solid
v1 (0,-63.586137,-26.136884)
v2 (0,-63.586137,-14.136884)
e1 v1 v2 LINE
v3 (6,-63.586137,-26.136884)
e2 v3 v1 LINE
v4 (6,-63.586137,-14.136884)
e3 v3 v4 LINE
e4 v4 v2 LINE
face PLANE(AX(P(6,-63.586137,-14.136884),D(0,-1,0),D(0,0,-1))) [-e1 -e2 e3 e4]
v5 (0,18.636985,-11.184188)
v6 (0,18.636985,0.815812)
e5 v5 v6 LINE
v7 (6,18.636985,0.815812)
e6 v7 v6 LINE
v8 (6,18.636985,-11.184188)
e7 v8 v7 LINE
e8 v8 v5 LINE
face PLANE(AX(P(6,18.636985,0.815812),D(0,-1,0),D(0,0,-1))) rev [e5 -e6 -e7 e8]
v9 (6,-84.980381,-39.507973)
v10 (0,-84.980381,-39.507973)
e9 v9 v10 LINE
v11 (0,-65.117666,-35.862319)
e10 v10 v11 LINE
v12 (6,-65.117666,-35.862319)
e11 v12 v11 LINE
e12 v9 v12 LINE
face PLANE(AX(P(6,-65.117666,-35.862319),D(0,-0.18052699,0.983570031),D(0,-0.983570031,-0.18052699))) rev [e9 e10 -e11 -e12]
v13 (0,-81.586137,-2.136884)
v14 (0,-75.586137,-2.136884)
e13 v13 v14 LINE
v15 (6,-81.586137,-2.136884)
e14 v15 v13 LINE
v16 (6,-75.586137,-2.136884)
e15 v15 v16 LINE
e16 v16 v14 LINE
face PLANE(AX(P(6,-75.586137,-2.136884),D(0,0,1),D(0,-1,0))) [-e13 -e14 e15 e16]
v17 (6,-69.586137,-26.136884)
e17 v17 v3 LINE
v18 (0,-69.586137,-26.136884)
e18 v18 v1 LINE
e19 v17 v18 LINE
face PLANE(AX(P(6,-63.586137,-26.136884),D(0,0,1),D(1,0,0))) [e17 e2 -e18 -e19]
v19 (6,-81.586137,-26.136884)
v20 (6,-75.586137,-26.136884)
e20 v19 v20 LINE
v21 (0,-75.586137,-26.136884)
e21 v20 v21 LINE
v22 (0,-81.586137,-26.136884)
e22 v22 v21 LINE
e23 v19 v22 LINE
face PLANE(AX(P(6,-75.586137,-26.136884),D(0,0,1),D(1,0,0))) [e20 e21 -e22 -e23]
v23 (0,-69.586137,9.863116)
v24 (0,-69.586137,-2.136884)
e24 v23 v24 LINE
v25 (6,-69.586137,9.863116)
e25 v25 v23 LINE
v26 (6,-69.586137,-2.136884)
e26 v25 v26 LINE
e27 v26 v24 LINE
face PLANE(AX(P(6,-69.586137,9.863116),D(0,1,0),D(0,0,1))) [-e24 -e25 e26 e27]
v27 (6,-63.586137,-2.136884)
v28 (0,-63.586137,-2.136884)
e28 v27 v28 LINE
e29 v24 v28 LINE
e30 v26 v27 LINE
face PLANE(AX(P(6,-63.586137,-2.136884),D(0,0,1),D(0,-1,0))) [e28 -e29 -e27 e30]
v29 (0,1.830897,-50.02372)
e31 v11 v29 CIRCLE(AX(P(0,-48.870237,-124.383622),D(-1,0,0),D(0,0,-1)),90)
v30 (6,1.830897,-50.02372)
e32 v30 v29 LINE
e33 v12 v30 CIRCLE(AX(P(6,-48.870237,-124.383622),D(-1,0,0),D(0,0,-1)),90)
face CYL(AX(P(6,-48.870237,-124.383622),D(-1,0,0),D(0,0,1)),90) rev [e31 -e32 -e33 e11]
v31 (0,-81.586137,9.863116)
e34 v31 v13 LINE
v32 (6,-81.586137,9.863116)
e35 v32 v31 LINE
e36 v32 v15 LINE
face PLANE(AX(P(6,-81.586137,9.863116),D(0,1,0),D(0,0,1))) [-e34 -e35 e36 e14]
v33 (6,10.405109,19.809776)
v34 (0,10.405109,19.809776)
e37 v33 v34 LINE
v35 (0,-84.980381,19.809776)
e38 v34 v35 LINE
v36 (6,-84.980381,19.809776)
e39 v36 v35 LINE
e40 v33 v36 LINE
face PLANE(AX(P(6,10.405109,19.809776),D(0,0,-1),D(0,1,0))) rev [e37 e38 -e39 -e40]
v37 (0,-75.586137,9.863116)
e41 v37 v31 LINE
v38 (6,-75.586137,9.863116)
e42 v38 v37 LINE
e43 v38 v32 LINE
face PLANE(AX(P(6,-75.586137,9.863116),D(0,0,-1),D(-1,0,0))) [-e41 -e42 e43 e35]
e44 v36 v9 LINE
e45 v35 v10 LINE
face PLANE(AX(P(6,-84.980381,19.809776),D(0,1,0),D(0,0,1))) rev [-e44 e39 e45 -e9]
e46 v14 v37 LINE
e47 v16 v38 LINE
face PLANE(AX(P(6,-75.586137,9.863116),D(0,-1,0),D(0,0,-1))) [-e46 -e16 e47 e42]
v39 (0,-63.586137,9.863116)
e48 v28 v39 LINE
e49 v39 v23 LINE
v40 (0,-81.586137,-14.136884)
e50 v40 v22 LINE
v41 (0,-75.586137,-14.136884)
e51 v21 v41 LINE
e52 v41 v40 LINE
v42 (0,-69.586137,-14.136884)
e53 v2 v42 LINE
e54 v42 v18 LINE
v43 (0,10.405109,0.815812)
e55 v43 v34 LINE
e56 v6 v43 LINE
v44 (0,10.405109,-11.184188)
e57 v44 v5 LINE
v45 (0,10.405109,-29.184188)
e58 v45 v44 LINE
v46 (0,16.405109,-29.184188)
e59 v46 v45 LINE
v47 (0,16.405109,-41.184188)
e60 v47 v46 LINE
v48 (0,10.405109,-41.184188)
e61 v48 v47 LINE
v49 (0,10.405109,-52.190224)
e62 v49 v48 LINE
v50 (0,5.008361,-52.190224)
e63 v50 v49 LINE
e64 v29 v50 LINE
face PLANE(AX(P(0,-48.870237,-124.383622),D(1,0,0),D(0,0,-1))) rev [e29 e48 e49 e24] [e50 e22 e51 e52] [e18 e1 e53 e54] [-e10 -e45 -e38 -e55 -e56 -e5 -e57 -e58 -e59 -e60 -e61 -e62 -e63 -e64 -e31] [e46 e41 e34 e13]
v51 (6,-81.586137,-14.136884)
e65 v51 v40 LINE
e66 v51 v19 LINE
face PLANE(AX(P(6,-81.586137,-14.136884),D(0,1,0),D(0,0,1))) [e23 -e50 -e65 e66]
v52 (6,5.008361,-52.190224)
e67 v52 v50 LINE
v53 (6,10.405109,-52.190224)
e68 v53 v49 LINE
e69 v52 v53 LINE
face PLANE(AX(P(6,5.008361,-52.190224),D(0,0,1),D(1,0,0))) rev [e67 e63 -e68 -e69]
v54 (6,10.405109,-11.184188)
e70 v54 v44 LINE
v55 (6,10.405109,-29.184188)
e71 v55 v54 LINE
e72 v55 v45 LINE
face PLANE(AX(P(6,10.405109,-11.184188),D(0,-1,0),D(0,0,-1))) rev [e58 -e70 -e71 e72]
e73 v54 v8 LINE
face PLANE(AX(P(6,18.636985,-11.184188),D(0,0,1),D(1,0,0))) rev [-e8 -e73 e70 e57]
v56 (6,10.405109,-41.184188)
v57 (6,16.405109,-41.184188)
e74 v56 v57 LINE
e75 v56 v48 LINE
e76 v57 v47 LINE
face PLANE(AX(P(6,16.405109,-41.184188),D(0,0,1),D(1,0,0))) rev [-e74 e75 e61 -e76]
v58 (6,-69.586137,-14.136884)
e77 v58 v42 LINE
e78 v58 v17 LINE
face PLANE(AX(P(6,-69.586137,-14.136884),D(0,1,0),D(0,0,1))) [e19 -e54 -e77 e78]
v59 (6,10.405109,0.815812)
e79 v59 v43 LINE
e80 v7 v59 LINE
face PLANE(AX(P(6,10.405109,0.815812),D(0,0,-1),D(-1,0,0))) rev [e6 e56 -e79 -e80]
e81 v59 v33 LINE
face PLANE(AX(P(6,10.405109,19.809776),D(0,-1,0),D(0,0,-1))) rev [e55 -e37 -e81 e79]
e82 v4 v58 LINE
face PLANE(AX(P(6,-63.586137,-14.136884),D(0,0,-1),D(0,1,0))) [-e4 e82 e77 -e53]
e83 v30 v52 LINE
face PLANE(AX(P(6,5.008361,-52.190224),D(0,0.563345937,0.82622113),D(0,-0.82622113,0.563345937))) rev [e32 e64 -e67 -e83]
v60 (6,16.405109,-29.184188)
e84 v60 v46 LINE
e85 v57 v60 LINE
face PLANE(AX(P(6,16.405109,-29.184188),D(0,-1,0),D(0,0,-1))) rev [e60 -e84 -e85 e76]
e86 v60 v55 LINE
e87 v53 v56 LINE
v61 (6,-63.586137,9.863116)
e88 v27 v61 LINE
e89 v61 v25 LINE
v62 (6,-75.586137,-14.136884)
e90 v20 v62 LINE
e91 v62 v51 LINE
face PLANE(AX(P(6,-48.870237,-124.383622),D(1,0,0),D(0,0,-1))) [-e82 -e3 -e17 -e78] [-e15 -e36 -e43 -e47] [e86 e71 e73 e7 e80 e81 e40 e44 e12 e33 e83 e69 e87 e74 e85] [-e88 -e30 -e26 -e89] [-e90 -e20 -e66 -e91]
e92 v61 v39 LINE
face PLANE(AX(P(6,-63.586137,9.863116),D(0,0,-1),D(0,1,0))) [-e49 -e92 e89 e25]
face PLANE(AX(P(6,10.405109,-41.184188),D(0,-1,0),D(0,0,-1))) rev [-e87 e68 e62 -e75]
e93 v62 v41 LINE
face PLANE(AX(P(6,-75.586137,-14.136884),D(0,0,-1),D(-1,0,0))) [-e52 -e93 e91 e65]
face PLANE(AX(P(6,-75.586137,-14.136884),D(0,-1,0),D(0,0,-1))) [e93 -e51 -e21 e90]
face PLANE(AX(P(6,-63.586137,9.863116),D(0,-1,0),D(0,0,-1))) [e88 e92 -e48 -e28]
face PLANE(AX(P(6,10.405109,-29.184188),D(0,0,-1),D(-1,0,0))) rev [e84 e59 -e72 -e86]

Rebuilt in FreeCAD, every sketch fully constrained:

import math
import FreeCAD as App
import Part
import Sketcher
from FreeCAD import Vector
Q = App.Units.Quantity

doc = App.newDocument("Part")
body = doc.addObject("PartDesign::Body", "Body")

sketch1 = body.newObject("Sketcher::SketchObject", "Sketch")
sketch1.AttachmentSupport = (doc.getObject("YZ_Plane"), [""])
sketch1.MapMode = "FlatFace"
sketch1.addGeometry([
    Part.LineSegment(Vector(10.4, 19.8, 0), Vector(-85, 19.8, 0)),
    Part.LineSegment(Vector(-85, 19.8, 0), Vector(-85, -39.5, 0)),
    Part.LineSegment(Vector(-85, -39.5, 0), Vector(-65.1, -35.9, 0)),
    Part.ArcOfCircle(Part.Circle(Vector(-48.9, -124.4, 0), Vector(0, 0, 1), 90), math.radians(56), math.radians(100)),
    Part.LineSegment(Vector(1.8, -50, 0), Vector(5, -52.2, 0)),
    Part.LineSegment(Vector(5, -52.2, 0), Vector(10.4, -52.2, 0)),
    Part.LineSegment(Vector(10.4, -52.2, 0), Vector(10.4, -41.2, 0)),
    Part.LineSegment(Vector(10.4, -41.2, 0), Vector(16.4, -41.2, 0)),
    Part.LineSegment(Vector(16.4, -41.2, 0), Vector(16.4, -29.2, 0)),
    Part.LineSegment(Vector(16.4, -29.2, 0), Vector(10.4, -29.2, 0)),
    Part.LineSegment(Vector(10.4, -29.2, 0), Vector(10.4, -11.2, 0)),
    Part.LineSegment(Vector(10.4, -11.2, 0), Vector(18.6, -11.2, 0)),
    Part.LineSegment(Vector(18.6, -11.2, 0), Vector(18.6, 0.8, 0)),
    Part.LineSegment(Vector(18.6, 0.8, 0), Vector(10.4, 0.8, 0)),
    Part.LineSegment(Vector(10.4, 0.8, 0), Vector(10.4, 19.8, 0)),
    Part.LineSegment(Vector(-81.6, -2.1, 0), Vector(-81.6, 9.9, 0)),
    Part.LineSegment(Vector(-81.6, 9.9, 0), Vector(-75.6, 9.9, 0)),
    Part.LineSegment(Vector(-75.6, 9.9, 0), Vector(-75.6, -2.1, 0)),
    Part.LineSegment(Vector(-75.6, -2.1, 0), Vector(-81.6, -2.1, 0)),
    Part.LineSegment(Vector(-81.6, -26.1, 0), Vector(-81.6, -14.1, 0)),
    Part.LineSegment(Vector(-81.6, -14.1, 0), Vector(-75.6, -14.1, 0)),
    Part.LineSegment(Vector(-75.6, -14.1, 0), Vector(-75.6, -26.1, 0)),
    Part.LineSegment(Vector(-75.6, -26.1, 0), Vector(-81.6, -26.1, 0)),
    Part.LineSegment(Vector(-69.6, -2.1, 0), Vector(-69.6, 9.9, 0)),
    Part.LineSegment(Vector(-69.6, 9.9, 0), Vector(-63.6, 9.9, 0)),
    Part.LineSegment(Vector(-63.6, 9.9, 0), Vector(-63.6, -2.1, 0)),
    Part.LineSegment(Vector(-63.6, -2.1, 0), Vector(-69.6, -2.1, 0)),
    Part.LineSegment(Vector(-69.6, -26.1, 0), Vector(-69.6, -14.1, 0)),
    Part.LineSegment(Vector(-69.6, -14.1, 0), Vector(-63.6, -14.1, 0)),
    Part.LineSegment(Vector(-63.6, -14.1, 0), Vector(-63.6, -26.1, 0)),
    Part.LineSegment(Vector(-63.6, -26.1, 0), Vector(-69.6, -26.1, 0)),
], False)
sketch1.addConstraint([
    Sketcher.Constraint("Coincident", 0, 2, 1, 1),
    Sketcher.Constraint("Coincident", 1, 2, 2, 1),
    Sketcher.Constraint("Tangent", 2, 2, 3, 2),
    Sketcher.Constraint("Tangent", 3, 1, 4, 1),
    Sketcher.Constraint("Coincident", 4, 2, 5, 1),
    Sketcher.Constraint("Coincident", 5, 2, 6, 1),
    Sketcher.Constraint("Coincident", 6, 2, 7, 1),
    Sketcher.Constraint("Coincident", 7, 2, 8, 1),
    Sketcher.Constraint("Coincident", 8, 2, 9, 1),
    Sketcher.Constraint("Coincident", 9, 2, 10, 1),
    Sketcher.Constraint("Coincident", 10, 2, 11, 1),
    Sketcher.Constraint("Coincident", 11, 2, 12, 1),
    Sketcher.Constraint("Coincident", 12, 2, 13, 1),
    Sketcher.Constraint("Coincident", 13, 2, 14, 1),
    Sketcher.Constraint("Coincident", 14, 2, 0, 1),
    Sketcher.Constraint("Coincident", 15, 2, 16, 1),
    Sketcher.Constraint("Coincident", 16, 2, 17, 1),
    Sketcher.Constraint("Coincident", 17, 2, 18, 1),
    Sketcher.Constraint("Coincident", 18, 2, 15, 1),
    Sketcher.Constraint("Coincident", 19, 2, 20, 1),
    Sketcher.Constraint("Coincident", 20, 2, 21, 1),
    Sketcher.Constraint("Coincident", 21, 2, 22, 1),
    Sketcher.Constraint("Coincident", 22, 2, 19, 1),
    Sketcher.Constraint("Coincident", 23, 2, 24, 1),
    Sketcher.Constraint("Coincident", 24, 2, 25, 1),
    Sketcher.Constraint("Coincident", 25, 2, 26, 1),
    Sketcher.Constraint("Coincident", 26, 2, 23, 1),
    Sketcher.Constraint("Coincident", 27, 2, 28, 1),
    Sketcher.Constraint("Coincident", 28, 2, 29, 1),
    Sketcher.Constraint("Coincident", 29, 2, 30, 1),
    Sketcher.Constraint("Coincident", 30, 2, 27, 1),
    Sketcher.Constraint("Horizontal", 0),
    Sketcher.Constraint("Vertical", 1),
    Sketcher.Constraint("Horizontal", 5),
    Sketcher.Constraint("Vertical", 6),
    Sketcher.Constraint("Horizontal", 7),
    Sketcher.Constraint("Vertical", 8),
    Sketcher.Constraint("Horizontal", 9),
    Sketcher.Constraint("Vertical", 10),
    Sketcher.Constraint("Horizontal", 11),
    Sketcher.Constraint("Vertical", 12),
    Sketcher.Constraint("Horizontal", 13),
    Sketcher.Constraint("Vertical", 14),
    Sketcher.Constraint("Vertical", 15),
    Sketcher.Constraint("Horizontal", 16),
    Sketcher.Constraint("Vertical", 17),
    Sketcher.Constraint("Horizontal", 18),
    Sketcher.Constraint("Vertical", 19),
    Sketcher.Constraint("Horizontal", 20),
    Sketcher.Constraint("Vertical", 21),
    Sketcher.Constraint("Horizontal", 22),
    Sketcher.Constraint("Vertical", 23),
    Sketcher.Constraint("Horizontal", 24),
    Sketcher.Constraint("Vertical", 25),
    Sketcher.Constraint("Horizontal", 26),
    Sketcher.Constraint("Vertical", 27),
    Sketcher.Constraint("Horizontal", 28),
    Sketcher.Constraint("Vertical", 29),
    Sketcher.Constraint("Horizontal", 30),
    Sketcher.Constraint("Horizontal", 16, 2, 23, 2),
    Sketcher.Constraint("Horizontal", 18, 2, 25, 2),
    Sketcher.Constraint("Horizontal", 20, 2, 27, 2),
    Sketcher.Constraint("Horizontal", 22, 2, 29, 2),
    Sketcher.Constraint("Vertical", 6, 2, 9, 2),
    Sketcher.Constraint("Vertical", 10, 2, 13, 2),
    Sketcher.Constraint("Vertical", 18, 2, 19, 2),
    Sketcher.Constraint("Vertical", 17, 2, 20, 2),
    Sketcher.Constraint("Vertical", 26, 2, 27, 2),
    Sketcher.Constraint("Vertical", 25, 2, 28, 2),
    Sketcher.Constraint("Equal", 9, 16),
    Sketcher.Constraint("Equal", 22, 24),
    Sketcher.Constraint("Equal", 8, 12),
    Sketcher.Constraint("Equal", 12, 15),
    Sketcher.Constraint("Equal", 17, 19),
    Sketcher.Constraint("Radius", 3, Q("90 mm")),
    Sketcher.Constraint("DistanceX", 7, 1, 7, 2, Q("6 mm")),
    Sketcher.Constraint("DistanceY", 8, 1, 8, 2, Q("12 mm")),
    Sketcher.Constraint("DistanceY", 10, 1, 10, 2, Q("18 mm")),
    Sketcher.Constraint("DistanceY", 4, 2, 0, 2, Q("72 mm")),
    Sketcher.Constraint("DistanceY", 19, 2, 18, 2, Q("12 mm")),
    Sketcher.Constraint("DistanceX", 16, 2, 23, 2, Q("6 mm")),
    Sketcher.Constraint("DistanceX", 0, 2, 0, 1, Q("95.38549 mm")),
    Sketcher.Constraint("DistanceX", 5, 1, 5, 2, Q("5.396748 mm")),
    Sketcher.Constraint("DistanceY", 1, 2, 1, 1, Q("59.31775 mm")),
    Sketcher.Constraint("DistanceY", 3, 3, 0, 2, Q("144.193398 mm")),
    Sketcher.Constraint("DistanceY", 3, 1, 2, 2, Q("14.161401 mm")),
    Sketcher.Constraint("DistanceX", 11, 1, 11, 2, Q("8.231876 mm")),
    Sketcher.Constraint("DistanceY", 6, 1, 6, 2, Q("11.006036 mm")),
    Sketcher.Constraint("DistanceY", 3, 3, -1, 1, Q("124.383622 mm")),
    Sketcher.Constraint("DistanceX", 0, 2, -1, 1, Q("84.980381 mm")),
    Sketcher.Constraint("DistanceY", 15, 2, 0, 2, Q("9.94666 mm")),
    Sketcher.Constraint("DistanceX", 15, 2, 2, 2, Q("16.468471 mm")),
])
pad1 = body.newObject("PartDesign::Pad", "Pad")
pad1.Profile = sketch1
pad1.Length = 6

doc.recompute()
